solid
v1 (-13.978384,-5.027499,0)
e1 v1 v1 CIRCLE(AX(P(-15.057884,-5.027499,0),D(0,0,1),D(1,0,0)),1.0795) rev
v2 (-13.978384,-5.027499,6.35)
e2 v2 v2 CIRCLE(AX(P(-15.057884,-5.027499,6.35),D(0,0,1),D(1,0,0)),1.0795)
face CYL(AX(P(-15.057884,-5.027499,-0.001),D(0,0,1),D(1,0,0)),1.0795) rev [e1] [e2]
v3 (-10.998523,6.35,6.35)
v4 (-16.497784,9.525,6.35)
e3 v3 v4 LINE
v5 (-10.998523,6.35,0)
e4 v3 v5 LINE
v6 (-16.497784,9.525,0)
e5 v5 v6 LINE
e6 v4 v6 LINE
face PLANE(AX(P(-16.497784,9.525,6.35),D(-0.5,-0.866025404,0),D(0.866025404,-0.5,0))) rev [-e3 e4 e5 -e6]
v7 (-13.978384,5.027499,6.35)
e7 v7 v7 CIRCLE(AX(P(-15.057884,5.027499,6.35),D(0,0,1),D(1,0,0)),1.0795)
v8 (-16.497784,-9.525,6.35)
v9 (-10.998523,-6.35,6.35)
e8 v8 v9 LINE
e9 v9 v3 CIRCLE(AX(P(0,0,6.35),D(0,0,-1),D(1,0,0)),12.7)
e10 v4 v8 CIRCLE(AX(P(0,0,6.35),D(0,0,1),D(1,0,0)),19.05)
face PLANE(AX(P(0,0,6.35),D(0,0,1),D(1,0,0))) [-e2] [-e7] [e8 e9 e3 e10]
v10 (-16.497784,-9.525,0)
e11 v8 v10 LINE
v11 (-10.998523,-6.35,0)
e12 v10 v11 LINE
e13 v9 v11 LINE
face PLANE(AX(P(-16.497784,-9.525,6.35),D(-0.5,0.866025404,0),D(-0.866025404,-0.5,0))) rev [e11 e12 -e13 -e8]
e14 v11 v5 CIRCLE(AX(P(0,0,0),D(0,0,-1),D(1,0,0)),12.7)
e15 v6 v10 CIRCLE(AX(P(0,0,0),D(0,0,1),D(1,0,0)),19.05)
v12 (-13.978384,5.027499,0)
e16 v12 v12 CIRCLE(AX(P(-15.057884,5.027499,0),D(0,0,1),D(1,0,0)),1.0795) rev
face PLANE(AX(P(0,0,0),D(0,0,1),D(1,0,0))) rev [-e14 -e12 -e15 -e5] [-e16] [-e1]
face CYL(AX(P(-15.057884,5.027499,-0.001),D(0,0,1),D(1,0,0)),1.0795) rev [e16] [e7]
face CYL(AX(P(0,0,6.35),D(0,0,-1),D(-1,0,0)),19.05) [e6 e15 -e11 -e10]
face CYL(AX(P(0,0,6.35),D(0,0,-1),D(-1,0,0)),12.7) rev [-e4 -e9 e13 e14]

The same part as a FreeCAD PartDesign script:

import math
import FreeCAD as App
import Part
import Sketcher
Q = App.Units.Quantity

doc = App.newDocument("Part")
body = doc.addObject("PartDesign::Body", "Body")

# Sketch on XY plane
sketch1 = doc.addObject("Sketcher::SketchObject", "Sketch")
body.addObject(sketch1)
sketch1.AttachmentSupport = (doc.XY_Plane, [""])
sketch1.MapMode = "FlatFace"
sketch1.addGeometry([
    Part.LineSegment(App.Vector(-16, -10, 0), App.Vector(-11, -6, 0)),
    Part.ArcOfCircle(Part.Circle(App.Vector(0, 0, 0), App.Vector(0, 0, 1), 13), math.radians(150), math.radians(210)),
    Part.LineSegment(App.Vector(-11, 6, 0), App.Vector(-16, 10, 0)),
    Part.ArcOfCircle(Part.Circle(App.Vector(0, 0, 0), App.Vector(0, 0, 1), 19), math.radians(150), math.radians(210)),
], False)
sketch1.addConstraint([
    Sketcher.Constraint("Coincident", 0, 2, 1, 2),
    Sketcher.Constraint("Coincident", 1, 1, 2, 1),
    Sketcher.Constraint("Coincident", 2, 2, 3, 1),
    Sketcher.Constraint("Coincident", 3, 2, 0, 1),
    Sketcher.Constraint("Coincident", 1, 3, -1, 1),
    Sketcher.Constraint("Coincident", 3, 3, -1, 1),
    Sketcher.Constraint("Vertical", 0, 2, 1, 1),
    Sketcher.Constraint("Vertical", 2, 2, 3, 2),
    Sketcher.Constraint("Radius", 1, Q("0.5 in")),
    Sketcher.Constraint("Radius", 3, Q("0.75 in")),
    Sketcher.Constraint("Angle", 0, Q("30 deg")),
    Sketcher.Constraint("DistanceY", 0, 2, 1, 1, Q("0.5 in")),
])
pad1 = doc.addObject("PartDesign::Pad", "Pad")
body.addObject(pad1)
pad1.Profile = sketch1
pad1.Length = Q("0.25 in")

# Sketch on XY plane
sketch2 = doc.addObject("Sketcher::SketchObject", "Sketch001")
body.addObject(sketch2)
sketch2.AttachmentSupport = (doc.XY_Plane, [""])
sketch2.MapMode = "FlatFace"
sketch2.AttachmentOffset = App.Placement(App.Vector(0, 0, 0.25 * 25.4), App.Rotation())
sketch2.addGeometry(Part.Circle(App.Vector(-15.1, 5, 0), App.Vector(0, 0, 1), 1.1), False)
sketch2.addConstraint([
    Sketcher.Constraint("Diameter", 0, Q("0.085 in")),
    Sketcher.Constraint("DistanceY", -1, 1, 0, 3, 5.027499),
    Sketcher.Constraint("DistanceX", 0, 3, -1, 1, 15.057884),
])
pocket1 = doc.addObject("PartDesign::Pocket", "Pocket")
body.addObject(pocket1)
pocket1.Profile = sketch2
pocket1.Type = "UpToFirst"

# Sketch on XY plane
sketch3 = doc.addObject("Sketcher::SketchObject", "Sketch002")
body.addObject(sketch3)
sketch3.AttachmentSupport = (doc.XY_Plane, [""])
sketch3.MapMode = "FlatFace"
sketch3.AttachmentOffset = App.Placement(App.Vector(0, 0, 0.25 * 25.4), App.Rotation())
sketch3.addGeometry(Part.Circle(App.Vector(-15.1, -5, 0), App.Vector(0, 0, 1), 1.1), False)
sketch3.addConstraint([
    Sketcher.Constraint("Diameter", 0, Q("0.085 in")),
    Sketcher.Constraint("DistanceY", 0, 3, -1, 1, 5.027499),
    Sketcher.Constraint("DistanceX", 0, 3, -1, 1, 15.057884),
])
pocket2 = doc.addObject("PartDesign::Pocket", "Pocket001")
body.addObject(pocket2)
pocket2.Profile = sketch3
pocket2.Type = "UpToFirst"

doc.recompute()
